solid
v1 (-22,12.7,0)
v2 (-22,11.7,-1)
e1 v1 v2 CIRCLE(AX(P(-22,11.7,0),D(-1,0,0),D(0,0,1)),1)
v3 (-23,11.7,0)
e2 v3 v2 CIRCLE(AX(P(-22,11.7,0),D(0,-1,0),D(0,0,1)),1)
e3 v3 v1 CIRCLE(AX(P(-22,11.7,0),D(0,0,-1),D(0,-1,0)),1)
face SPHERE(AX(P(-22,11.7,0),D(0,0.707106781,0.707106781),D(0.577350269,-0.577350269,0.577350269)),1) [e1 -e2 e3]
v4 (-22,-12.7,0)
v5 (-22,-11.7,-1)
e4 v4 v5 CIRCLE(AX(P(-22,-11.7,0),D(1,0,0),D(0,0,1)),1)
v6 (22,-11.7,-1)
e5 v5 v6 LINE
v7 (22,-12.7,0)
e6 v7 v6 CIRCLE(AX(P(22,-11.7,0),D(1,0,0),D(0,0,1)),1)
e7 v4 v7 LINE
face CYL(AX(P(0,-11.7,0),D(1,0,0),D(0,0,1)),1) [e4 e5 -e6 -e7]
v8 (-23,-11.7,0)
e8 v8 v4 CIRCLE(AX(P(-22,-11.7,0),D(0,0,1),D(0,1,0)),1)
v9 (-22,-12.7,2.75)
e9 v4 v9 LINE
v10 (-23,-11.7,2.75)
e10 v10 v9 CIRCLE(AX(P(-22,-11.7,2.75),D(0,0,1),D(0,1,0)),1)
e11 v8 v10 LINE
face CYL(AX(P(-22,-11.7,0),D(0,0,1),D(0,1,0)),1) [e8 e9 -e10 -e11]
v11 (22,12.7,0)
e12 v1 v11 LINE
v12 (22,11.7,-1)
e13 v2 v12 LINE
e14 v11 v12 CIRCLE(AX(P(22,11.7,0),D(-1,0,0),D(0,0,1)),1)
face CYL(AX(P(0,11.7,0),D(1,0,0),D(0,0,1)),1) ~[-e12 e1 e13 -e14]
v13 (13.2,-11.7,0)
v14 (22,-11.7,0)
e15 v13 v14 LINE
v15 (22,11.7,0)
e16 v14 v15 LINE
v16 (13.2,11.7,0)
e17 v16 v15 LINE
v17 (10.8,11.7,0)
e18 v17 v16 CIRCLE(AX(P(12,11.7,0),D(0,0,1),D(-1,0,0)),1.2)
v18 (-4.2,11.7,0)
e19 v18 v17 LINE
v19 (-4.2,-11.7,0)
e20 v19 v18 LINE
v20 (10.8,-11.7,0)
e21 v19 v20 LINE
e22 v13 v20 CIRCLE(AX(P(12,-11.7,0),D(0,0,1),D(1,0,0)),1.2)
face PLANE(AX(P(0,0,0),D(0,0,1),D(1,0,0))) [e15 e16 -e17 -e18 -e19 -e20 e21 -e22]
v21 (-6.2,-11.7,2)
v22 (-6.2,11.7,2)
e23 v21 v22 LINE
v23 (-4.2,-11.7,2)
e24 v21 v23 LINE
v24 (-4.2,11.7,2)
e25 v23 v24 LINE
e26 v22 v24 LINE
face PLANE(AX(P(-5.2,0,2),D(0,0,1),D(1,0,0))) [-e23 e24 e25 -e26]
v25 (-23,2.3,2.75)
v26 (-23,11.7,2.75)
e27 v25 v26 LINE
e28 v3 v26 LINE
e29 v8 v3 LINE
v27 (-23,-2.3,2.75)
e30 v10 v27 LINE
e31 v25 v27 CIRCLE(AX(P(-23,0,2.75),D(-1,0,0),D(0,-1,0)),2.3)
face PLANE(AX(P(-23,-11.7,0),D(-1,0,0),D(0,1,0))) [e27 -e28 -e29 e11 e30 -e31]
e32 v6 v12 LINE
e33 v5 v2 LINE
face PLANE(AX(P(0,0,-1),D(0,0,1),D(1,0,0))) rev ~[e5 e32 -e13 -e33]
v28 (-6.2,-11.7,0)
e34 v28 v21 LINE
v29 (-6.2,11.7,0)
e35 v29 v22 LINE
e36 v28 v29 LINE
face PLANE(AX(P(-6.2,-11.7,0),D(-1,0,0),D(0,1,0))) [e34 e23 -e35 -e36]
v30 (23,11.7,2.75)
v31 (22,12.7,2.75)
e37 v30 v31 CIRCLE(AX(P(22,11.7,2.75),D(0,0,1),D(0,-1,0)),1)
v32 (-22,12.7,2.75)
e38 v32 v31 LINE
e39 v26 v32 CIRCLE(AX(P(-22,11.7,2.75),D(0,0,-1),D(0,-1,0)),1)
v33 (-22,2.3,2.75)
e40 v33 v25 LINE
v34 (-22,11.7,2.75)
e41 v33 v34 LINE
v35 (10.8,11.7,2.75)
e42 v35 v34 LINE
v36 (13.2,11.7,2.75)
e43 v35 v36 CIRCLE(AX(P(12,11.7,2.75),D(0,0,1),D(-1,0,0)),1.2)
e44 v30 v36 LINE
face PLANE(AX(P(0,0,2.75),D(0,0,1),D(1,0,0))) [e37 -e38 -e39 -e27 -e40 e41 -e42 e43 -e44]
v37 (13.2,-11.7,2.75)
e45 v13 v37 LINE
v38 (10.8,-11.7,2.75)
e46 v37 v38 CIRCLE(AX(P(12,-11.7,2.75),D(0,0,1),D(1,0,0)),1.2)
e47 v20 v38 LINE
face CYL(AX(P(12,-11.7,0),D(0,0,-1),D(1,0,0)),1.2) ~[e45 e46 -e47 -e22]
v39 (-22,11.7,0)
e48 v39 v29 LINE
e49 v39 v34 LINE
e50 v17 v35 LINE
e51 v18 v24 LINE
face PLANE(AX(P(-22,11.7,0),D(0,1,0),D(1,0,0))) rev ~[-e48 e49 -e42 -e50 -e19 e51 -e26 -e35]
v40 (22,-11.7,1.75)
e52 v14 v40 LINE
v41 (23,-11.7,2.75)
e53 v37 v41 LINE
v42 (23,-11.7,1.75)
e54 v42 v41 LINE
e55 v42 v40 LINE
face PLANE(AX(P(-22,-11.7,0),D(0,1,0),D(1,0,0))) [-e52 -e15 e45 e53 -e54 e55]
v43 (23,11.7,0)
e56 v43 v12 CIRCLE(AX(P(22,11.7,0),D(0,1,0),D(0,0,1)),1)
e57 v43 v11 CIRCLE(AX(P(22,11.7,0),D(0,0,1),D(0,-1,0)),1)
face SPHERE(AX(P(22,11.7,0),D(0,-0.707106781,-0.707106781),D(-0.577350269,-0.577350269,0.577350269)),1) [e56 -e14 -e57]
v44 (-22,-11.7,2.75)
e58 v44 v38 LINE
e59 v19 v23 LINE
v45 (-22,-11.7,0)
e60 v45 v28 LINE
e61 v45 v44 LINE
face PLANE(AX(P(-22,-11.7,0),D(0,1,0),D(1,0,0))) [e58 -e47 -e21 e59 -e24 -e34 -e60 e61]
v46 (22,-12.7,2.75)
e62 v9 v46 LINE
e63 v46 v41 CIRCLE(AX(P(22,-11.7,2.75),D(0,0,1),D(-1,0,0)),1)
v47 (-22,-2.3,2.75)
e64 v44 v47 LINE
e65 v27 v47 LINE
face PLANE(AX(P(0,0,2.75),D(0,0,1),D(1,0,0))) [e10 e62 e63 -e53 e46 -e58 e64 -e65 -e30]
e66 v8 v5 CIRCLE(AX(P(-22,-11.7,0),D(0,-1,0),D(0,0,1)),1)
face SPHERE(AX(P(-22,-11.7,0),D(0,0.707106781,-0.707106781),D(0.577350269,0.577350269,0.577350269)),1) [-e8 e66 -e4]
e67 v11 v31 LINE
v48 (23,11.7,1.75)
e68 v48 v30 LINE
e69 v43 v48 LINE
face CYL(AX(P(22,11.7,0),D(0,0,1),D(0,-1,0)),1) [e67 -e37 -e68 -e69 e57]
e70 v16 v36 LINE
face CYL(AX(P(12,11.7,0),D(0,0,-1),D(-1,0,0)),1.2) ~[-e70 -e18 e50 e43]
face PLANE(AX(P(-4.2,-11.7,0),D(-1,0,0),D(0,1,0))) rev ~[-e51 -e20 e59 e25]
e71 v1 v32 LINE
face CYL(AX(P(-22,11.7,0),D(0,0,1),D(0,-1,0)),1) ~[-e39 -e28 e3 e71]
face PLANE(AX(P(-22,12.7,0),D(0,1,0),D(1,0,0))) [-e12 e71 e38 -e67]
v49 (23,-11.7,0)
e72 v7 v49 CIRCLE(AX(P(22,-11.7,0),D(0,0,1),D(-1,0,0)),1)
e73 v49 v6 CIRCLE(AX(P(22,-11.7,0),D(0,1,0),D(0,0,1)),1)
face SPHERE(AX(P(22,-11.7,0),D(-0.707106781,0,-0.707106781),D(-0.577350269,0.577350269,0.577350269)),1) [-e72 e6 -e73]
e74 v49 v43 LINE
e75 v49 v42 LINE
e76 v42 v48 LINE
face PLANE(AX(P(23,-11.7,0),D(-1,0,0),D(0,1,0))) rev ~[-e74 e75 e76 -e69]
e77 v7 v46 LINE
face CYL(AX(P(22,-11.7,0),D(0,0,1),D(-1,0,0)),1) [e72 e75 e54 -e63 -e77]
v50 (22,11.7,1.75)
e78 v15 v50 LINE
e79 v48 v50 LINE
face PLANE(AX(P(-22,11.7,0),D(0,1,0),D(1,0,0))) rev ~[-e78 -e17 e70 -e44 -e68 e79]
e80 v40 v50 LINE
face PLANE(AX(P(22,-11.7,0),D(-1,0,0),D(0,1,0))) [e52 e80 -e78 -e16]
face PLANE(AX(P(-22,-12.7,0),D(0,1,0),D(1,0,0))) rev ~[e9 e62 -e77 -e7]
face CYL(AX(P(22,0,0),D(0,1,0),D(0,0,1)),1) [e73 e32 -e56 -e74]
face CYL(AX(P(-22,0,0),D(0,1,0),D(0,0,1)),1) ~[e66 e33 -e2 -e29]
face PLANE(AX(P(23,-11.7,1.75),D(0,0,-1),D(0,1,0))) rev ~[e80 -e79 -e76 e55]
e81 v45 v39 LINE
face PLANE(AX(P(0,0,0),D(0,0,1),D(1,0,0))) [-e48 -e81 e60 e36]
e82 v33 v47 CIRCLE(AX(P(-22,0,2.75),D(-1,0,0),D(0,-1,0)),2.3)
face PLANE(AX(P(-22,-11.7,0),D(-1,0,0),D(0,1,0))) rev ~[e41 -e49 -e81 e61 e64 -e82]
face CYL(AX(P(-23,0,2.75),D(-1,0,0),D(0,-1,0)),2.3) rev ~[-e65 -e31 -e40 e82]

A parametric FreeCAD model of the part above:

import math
import FreeCAD as App
import Part
import Sketcher


def faces_at(feature, points):
    """Names of the faces that lie closest to the given points."""
    faces = feature.Shape.Faces
    near = lambda p: min(range(len(faces)), key=lambda i: faces[i].distToShape(Part.Vertex(*p))[0])
    return sorted({f"Face{near(p) + 1}" for p in points})

doc = App.newDocument("Part")
body = doc.addObject("PartDesign::Body", "Body")

# Sketch on XY plane
sketch1 = body.newObject("Sketcher::SketchObject", "Sketch")
sketch1.AttachmentSupport = (doc.getObject("XY_Plane"), [""])
sketch1.MapMode = "FlatFace"
sketch1.addGeometry(Part.LineSegment(App.Vector(-22, 11.7, 0), App.Vector(-22, -11.7, 0)), False)
sketch1.addGeometry(Part.LineSegment(App.Vector(-22, -11.7, 0), App.Vector(22, -11.7, 0)), False)
sketch1.addGeometry(Part.LineSegment(App.Vector(22, -11.7, 0), App.Vector(22, 11.7, 0)), False)
sketch1.addGeometry(Part.LineSegment(App.Vector(22, 11.7, 0), App.Vector(-22, 11.7, 0)), False)
sketch1.addConstraint(Sketcher.Constraint("Coincident", 0, 2, 1, 1))
sketch1.addConstraint(Sketcher.Constraint("Coincident", 1, 2, 2, 1))
sketch1.addConstraint(Sketcher.Constraint("Coincident", 2, 2, 3, 1))
sketch1.addConstraint(Sketcher.Constraint("Coincident", 3, 2, 0, 1))
sketch1.addConstraint(Sketcher.Constraint("Vertical", 0))
sketch1.addConstraint(Sketcher.Constraint("Horizontal", 1))
sketch1.addConstraint(Sketcher.Constraint("Vertical", 2))
sketch1.addConstraint(Sketcher.Constraint("Horizontal", 3))
sketch1.addConstraint(Sketcher.Constraint("Symmetric", 0, 2, 2, 2, -1, 1))
sketch1.addConstraint(Sketcher.Constraint("DistanceX", 1, 1, 1, 2, 44.0))
sketch1.addConstraint(Sketcher.Constraint("DistanceY", 0, 2, 0, 1, 23.4))
pad1 = body.newObject("PartDesign::Pad", "Pad")
pad1.Profile = sketch1
pad1.Length = 2.75
doc.recompute()

thickness = body.newObject("PartDesign::Thickness", "Thickness")
thickness.Base = (pad1, faces_at(pad1, [(0, 0, 2.75)]))
thickness.Value = 1
thickness.Reversed = False
thickness.Join = "Arc"

# Sketch on YZ plane
sketch2 = body.newObject("Sketcher::SketchObject", "Sketch001")
sketch2.AttachmentSupport = (doc.getObject("YZ_Plane"), [""])
sketch2.MapMode = "FlatFace"
sketch2.AttachmentOffset = App.Placement(App.Vector(0, 0, 23), App.Rotation())
sketch2.addGeometry(Part.LineSegment(App.Vector(-11.7, 2.75, 0), App.Vector(-11.7, 1.75, 0)), False)
sketch2.addGeometry(Part.LineSegment(App.Vector(-11.7, 1.75, 0), App.Vector(11.7, 1.75, 0)), False)
sketch2.addGeometry(Part.LineSegment(App.Vector(11.7, 1.75, 0), App.Vector(11.7, 2.75, 0)), False)
sketch2.addGeometry(Part.LineSegment(App.Vector(11.7, 2.75, 0), App.Vector(-11.7, 2.75, 0)), False)
sketch2.addConstraint(Sketcher.Constraint("Coincident", 0, 2, 1, 1))
sketch2.addConstraint(Sketcher.Constraint("Coincident", 1, 2, 2, 1))
sketch2.addConstraint(Sketcher.Constraint("Coincident", 2, 2, 3, 1))
sketch2.addConstraint(Sketcher.Constraint("Coincident", 3, 2, 0, 1))
sketch2.addConstraint(Sketcher.Constraint("Vertical", 0))
sketch2.addConstraint(Sketcher.Constraint("Horizontal", 1))
sketch2.addConstraint(Sketcher.Constraint("Vertical", 2))
sketch2.addConstraint(Sketcher.Constraint("Horizontal", 3))
sketch2.addConstraint(Sketcher.Constraint("DistanceY", 0, 2, 0, 1, 1.0))
sketch2.addConstraint(Sketcher.Constraint("DistanceX", 1, 1, 1, 2, 23.4))
sketch2.addConstraint(Sketcher.Constraint("DistanceX", 0, 2, -1, 1, 11.7))
sketch2.addConstraint(Sketcher.Constraint("DistanceY", -1, 1, 0, 2, 1.75))
pocket1 = body.newObject("PartDesign::Pocket", "Pocket")
pocket1.Profile = sketch2
pocket1.Length = 1

# Sketch on YZ plane
sketch3 = body.newObject("Sketcher::SketchObject", "Sketch002")
sketch3.AttachmentSupport = (doc.getObject("YZ_Plane"), [""])
sketch3.MapMode = "FlatFace"
sketch3.AttachmentOffset = App.Placement(App.Vector(0, 0, -23), App.Rotation())
sketch3.addGeometry(Part.Circle(App.Vector(0, 2.75, 0), App.Vector(0, 0, 1), 2.3), False)
sketch3.addConstraint(Sketcher.Constraint("PointOnObject", 0, 3, -2))
sketch3.addConstraint(Sketcher.Constraint("Diameter", 0, 4.6))
sketch3.addConstraint(Sketcher.Constraint("DistanceY", -1, 1, 0, 3, 2.75))
pocket2 = body.newObject("PartDesign::Pocket", "Pocket001")
pocket2.Profile = sketch3
pocket2.Length = 1
pocket2.Reversed = True

# Sketch on XY plane
sketch4 = body.newObject("Sketcher::SketchObject", "Sketch003")
sketch4.AttachmentSupport = (doc.getObject("XY_Plane"), [""])
sketch4.MapMode = "FlatFace"
sketch4.addGeometry(Part.ArcOfCircle(Part.Circle(App.Vector(12, 11.7, 0), App.Vector(0, 0, 1), 1.2), math.radians(180), math.radians(360)), False)
sketch4.addGeometry(Part.LineSegment(App.Vector(13.2, 11.7, 0), App.Vector(10.8, 11.7, 0)), False)
sketch4.addGeometry(Part.ArcOfCircle(Part.Circle(App.Vector(12, -11.7, 0), App.Vector(0, 0, 1), 1.2), math.radians(0), math.radians(180)), False)
sketch4.addGeometry(Part.LineSegment(App.Vector(10.8, -11.7, 0), App.Vector(13.2, -11.7, 0)), False)
sketch4.addConstraint(Sketcher.Constraint("Coincident", 0, 1, 1, 2))
sketch4.addConstraint(Sketcher.Constraint("Coincident", 1, 1, 0, 2))
sketch4.addConstraint(Sketcher.Constraint("Coincident", 2, 1, 3, 2))
sketch4.addConstraint(Sketcher.Constraint("Coincident", 3, 1, 2, 2))
sketch4.addConstraint(Sketcher.Constraint("Horizontal", 1))
sketch4.addConstraint(Sketcher.Constraint("Horizontal", 3))
sketch4.addConstraint(Sketcher.Constraint("Equal", 0, 2))
sketch4.addConstraint(Sketcher.Constraint("Symmetric", 0, 3, 2, 3, -1))
sketch4.addConstraint(Sketcher.Constraint("Radius", 0, 1.2))
sketch4.addConstraint(Sketcher.Constraint("DistanceX", -1, 1, 0, 3, 12.0))
sketch4.addConstraint(Sketcher.Constraint("DistanceY", -1, 1, 0, 3, 11.7))
sketch4.addConstraint(Sketcher.Constraint("DistanceY", -1, 1, 0, 1, 11.7))
sketch4.addConstraint(Sketcher.Constraint("DistanceY", 2, 1, -1, 1, 11.7))
pad2 = body.newObject("PartDesign::Pad", "Pad001")
pad2.Profile = sketch4
pad2.Length = 2.75

# Sketch on XY plane
sketch5 = body.newObject("Sketcher::SketchObject", "Sketch004")
sketch5.AttachmentSupport = (doc.getObject("XY_Plane"), [""])
sketch5.MapMode = "FlatFace"
sketch5.addGeometry(Part.LineSegment(App.Vector(-6.2, 11.7, 0), App.Vector(-6.2, -11.7, 0)), False)
sketch5.addGeometry(Part.LineSegment(App.Vector(-6.2, -11.7, 0), App.Vector(-4.2, -11.7, 0)), False)
sketch5.addGeometry(Part.LineSegment(App.Vector(-4.2, -11.7, 0), App.Vector(-4.2, 11.7, 0)), False)
sketch5.addGeometry(Part.LineSegment(App.Vector(-4.2, 11.7, 0), App.Vector(-6.2, 11.7, 0)), False)
sketch5.addConstraint(Sketcher.Constraint("Coincident", 0, 2, 1, 1))
sketch5.addConstraint(Sketcher.Constraint("Coincident", 1, 2, 2, 1))
sketch5.addConstraint(Sketcher.Constraint("Coincident", 2, 2, 3, 1))
sketch5.addConstraint(Sketcher.Constraint("Coincident", 3, 2, 0, 1))
sketch5.addConstraint(Sketcher.Constraint("Vertical", 0))
sketch5.addConstraint(Sketcher.Constraint("Horizontal", 1))
sketch5.addConstraint(Sketcher.Constraint("Vertical", 2))
sketch5.addConstraint(Sketcher.Constraint("Horizontal", 3))
sketch5.addConstraint(Sketcher.Constraint("DistanceX", 1, 1, 1, 2, 2.0))
sketch5.addConstraint(Sketcher.Constraint("DistanceY", 0, 2, 0, 1, 23.4))
sketch5.addConstraint(Sketcher.Constraint("DistanceX", 0, 2, -1, 1, 6.2))
sketch5.addConstraint(Sketcher.Constraint("DistanceY", 0, 2, -1, 1, 11.7))
pad3 = body.newObject("PartDesign::Pad", "Pad002")
pad3.Profile = sketch5
pad3.Length = 2

doc.recompute()
